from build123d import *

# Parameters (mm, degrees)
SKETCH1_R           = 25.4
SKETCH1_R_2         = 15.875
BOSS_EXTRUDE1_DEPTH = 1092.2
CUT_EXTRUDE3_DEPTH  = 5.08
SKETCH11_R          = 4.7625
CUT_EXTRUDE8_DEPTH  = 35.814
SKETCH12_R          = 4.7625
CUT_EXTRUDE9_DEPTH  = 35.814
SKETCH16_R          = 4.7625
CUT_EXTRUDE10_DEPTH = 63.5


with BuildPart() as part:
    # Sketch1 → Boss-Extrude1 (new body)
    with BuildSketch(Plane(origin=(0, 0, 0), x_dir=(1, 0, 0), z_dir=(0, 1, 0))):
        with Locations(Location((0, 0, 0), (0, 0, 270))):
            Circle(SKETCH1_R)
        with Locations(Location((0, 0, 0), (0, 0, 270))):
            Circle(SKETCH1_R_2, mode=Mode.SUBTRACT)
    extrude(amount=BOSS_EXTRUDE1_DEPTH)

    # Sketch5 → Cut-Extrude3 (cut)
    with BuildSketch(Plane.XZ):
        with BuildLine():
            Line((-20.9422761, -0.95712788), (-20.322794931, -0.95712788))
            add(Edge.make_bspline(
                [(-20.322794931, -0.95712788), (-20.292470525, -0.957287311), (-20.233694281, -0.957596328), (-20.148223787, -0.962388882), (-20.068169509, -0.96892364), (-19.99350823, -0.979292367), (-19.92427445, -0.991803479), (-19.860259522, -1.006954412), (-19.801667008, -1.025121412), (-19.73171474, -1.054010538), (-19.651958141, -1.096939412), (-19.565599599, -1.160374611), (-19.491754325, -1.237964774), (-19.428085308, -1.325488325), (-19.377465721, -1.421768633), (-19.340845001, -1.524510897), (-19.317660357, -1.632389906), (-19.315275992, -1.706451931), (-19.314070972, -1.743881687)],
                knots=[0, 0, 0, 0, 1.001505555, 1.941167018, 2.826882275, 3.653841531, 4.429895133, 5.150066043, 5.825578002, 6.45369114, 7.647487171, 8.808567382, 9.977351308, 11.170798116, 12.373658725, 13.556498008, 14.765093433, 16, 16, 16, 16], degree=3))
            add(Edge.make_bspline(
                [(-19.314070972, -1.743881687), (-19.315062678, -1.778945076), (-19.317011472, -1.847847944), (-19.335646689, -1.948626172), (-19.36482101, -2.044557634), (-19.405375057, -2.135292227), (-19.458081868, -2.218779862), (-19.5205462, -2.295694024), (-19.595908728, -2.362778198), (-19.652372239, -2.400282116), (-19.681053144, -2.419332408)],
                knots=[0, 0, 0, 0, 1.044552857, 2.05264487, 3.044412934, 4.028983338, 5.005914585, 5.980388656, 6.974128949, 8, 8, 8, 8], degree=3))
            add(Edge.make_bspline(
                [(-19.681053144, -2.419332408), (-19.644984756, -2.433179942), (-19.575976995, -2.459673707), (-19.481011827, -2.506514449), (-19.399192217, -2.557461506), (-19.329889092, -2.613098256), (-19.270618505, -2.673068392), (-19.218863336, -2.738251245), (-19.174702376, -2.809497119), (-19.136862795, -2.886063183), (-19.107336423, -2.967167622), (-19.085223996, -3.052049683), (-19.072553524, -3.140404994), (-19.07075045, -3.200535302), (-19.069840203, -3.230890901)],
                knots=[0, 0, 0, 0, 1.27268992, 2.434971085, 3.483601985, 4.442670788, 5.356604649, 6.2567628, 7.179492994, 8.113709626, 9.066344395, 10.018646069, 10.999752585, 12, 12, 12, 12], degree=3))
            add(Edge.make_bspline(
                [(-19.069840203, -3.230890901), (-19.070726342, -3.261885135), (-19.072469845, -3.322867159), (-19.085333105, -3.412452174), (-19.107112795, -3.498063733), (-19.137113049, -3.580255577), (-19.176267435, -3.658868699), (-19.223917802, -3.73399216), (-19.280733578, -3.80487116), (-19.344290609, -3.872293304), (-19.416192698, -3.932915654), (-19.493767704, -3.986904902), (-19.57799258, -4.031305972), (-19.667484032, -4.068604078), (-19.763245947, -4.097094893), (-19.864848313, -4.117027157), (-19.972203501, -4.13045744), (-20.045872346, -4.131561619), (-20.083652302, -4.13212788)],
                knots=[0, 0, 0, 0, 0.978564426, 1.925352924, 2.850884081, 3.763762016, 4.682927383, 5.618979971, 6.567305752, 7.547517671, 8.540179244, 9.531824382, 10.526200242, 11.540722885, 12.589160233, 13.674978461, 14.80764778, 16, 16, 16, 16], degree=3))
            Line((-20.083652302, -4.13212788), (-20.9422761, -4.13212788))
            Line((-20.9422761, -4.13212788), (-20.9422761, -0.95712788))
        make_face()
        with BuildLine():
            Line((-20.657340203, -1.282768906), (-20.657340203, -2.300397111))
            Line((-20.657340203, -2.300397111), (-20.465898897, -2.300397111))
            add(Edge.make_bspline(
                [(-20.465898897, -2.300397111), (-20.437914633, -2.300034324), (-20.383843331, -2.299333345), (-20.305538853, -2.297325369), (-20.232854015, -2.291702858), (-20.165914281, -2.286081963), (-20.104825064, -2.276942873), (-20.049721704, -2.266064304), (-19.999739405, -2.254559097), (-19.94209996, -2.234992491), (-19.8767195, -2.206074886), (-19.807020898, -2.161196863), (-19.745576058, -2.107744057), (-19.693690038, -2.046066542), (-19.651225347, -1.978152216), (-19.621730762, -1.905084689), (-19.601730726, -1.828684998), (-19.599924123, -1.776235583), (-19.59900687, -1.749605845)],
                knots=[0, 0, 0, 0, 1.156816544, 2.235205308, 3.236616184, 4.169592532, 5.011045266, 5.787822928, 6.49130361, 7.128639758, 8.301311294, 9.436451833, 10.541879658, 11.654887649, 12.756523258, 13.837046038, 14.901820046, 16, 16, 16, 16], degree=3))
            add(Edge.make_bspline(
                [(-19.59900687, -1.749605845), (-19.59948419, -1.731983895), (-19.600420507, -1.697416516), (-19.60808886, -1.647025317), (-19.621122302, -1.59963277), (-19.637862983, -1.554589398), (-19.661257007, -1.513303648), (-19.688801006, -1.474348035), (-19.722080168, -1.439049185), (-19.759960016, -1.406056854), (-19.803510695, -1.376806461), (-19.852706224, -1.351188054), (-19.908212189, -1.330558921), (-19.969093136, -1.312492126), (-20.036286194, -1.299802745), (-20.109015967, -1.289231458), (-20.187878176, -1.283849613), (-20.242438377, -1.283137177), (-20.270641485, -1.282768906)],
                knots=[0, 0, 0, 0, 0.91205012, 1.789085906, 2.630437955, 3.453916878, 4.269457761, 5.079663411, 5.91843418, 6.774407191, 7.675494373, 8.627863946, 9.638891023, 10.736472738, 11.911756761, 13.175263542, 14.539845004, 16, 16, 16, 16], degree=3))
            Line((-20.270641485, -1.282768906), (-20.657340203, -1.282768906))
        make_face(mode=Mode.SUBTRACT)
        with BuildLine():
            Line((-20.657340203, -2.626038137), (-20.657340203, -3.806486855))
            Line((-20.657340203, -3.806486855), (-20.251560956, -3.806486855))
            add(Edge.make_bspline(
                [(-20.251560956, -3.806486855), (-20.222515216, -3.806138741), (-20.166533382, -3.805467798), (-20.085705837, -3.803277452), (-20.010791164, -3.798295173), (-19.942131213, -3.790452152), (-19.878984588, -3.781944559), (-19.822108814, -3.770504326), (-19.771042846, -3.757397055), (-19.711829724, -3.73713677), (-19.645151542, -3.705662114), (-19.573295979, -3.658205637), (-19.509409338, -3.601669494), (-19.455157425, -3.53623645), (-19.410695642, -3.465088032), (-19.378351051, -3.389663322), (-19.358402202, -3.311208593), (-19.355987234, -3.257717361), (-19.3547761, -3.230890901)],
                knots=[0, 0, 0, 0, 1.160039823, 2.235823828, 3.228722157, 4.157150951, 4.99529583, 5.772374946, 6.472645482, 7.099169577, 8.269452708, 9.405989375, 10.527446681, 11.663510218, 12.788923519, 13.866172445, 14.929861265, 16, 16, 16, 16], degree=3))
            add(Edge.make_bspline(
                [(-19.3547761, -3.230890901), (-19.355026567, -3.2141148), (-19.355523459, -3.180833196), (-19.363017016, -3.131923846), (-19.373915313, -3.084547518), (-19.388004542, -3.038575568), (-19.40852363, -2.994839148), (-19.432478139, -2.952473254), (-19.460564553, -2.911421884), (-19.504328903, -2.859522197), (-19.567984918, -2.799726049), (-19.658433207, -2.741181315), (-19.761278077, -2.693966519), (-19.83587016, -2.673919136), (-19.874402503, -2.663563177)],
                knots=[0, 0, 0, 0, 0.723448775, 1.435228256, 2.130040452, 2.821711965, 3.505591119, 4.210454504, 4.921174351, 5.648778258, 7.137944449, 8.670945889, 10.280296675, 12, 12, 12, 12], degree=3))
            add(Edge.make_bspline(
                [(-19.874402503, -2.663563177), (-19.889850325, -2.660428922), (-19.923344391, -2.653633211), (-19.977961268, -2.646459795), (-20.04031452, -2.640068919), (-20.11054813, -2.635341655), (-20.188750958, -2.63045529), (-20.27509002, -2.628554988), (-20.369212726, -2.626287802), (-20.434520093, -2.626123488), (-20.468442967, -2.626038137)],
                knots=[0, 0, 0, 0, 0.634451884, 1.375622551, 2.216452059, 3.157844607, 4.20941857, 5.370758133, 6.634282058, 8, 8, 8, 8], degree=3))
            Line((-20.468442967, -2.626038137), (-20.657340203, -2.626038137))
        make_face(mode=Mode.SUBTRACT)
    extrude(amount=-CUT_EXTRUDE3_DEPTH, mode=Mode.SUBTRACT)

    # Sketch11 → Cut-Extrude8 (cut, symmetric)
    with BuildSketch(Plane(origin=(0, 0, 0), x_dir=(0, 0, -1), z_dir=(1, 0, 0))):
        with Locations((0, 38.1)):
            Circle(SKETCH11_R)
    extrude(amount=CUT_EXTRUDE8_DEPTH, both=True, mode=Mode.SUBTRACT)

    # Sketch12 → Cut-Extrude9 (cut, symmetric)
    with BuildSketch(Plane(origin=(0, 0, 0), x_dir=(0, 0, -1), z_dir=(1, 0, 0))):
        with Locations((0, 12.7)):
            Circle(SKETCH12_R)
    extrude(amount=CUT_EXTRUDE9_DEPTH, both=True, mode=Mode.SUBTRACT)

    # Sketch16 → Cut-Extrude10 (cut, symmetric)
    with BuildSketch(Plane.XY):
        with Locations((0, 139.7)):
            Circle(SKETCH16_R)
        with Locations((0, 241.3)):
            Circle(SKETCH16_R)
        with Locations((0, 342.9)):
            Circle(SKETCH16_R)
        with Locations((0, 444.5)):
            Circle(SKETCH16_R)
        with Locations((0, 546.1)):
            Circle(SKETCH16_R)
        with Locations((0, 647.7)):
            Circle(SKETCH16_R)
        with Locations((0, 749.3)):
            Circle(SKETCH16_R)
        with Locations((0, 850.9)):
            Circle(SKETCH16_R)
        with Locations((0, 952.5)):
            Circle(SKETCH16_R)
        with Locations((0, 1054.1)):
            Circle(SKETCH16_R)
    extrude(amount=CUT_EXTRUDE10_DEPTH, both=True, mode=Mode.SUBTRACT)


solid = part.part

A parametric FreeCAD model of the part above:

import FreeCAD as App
import Part
import Sketcher

V = App.Vector
Q = App.Units.Quantity

doc = App.newDocument("Part")
body = doc.addObject("PartDesign::Body", "Body")

sketch1 = doc.addObject("Sketcher::SketchObject", "Sketch")
body.addObject(sketch1)
sketch1.AttachmentSupport = (doc.XZ_Plane, [""])
sketch1.MapMode = "FlatFace"
sketch1.addGeometry(Part.Circle(V(0, 0, 0), V(0, 0, 1), 25), False)
sketch1.addGeometry(Part.Circle(V(0, 0, 0), V(0, 0, 1), 16), False)
sketch1.addConstraint(Sketcher.Constraint("Coincident", 0, 3, -1, 1))
sketch1.addConstraint(Sketcher.Constraint("Coincident", 1, 3, -1, 1))
sketch1.addConstraint(Sketcher.Constraint("Diameter", 0, Q("2 in")))
sketch1.addConstraint(Sketcher.Constraint("Diameter", 1, Q("1.25 in")))
pad1 = doc.addObject("PartDesign::Pad", "Pad")
body.addObject(pad1)
pad1.Profile = sketch1
pad1.Length = Q("43 in")
pad1.Reversed = True

sketch2 = doc.addObject("Sketcher::SketchObject", "Sketch001")
body.addObject(sketch2)
sketch2.AttachmentSupport = (doc.XZ_Plane, [""])
sketch2.MapMode = "FlatFace"
sketch2.addGeometry(Part.LineSegment(V(-20.322795, -0.957128, 0), V(-20.942276, -0.957128, 0)), False)
sketch2.addGeometry(Part.LineSegment(V(-20.942276, -0.957128, 0), V(-20.942276, -4.132128, 0)), False)
sketch2.addGeometry(Part.LineSegment(V(-20.942276, -4.132128, 0), V(-20.083652, -4.132128, 0)), False)
sketch2.addGeometry(Part.BSplineCurve([V(-19.06984, -3.230891, 0), V(-19.070726, -3.261885, 0), V(-19.07247, -3.322867, 0), V(-19.085333, -3.412452, 0), V(-19.107113, -3.498064, 0), V(-19.137113, -3.580256, 0), V(-19.176267, -3.658869, 0), V(-19.223918, -3.733992, 0), V(-19.280734, -3.804871, 0), V(-19.344291, -3.872293, 0), V(-19.416193, -3.932916, 0), V(-19.493768, -3.986905, 0), V(-19.577993, -4.031306, 0), V(-19.667484, -4.068604, 0), V(-19.763246, -4.097095, 0), V(-19.864848, -4.117027, 0), V(-19.972204, -4.130457, 0), V(-20.045872, -4.131562, 0), V(-20.083652, -4.132128, 0)], [4, 1, 1, 1, 1, 1, 1, 1, 1, 1, 1, 1, 1, 1, 1, 1, 4], [0, 0.978564426, 1.925352924, 2.850884081, 3.763762016, 4.682927383, 5.618979971, 6.567305752, 7.547517671, 8.540179244, 9.531824382, 10.526200242, 11.540722885, 12.589160233, 13.674978461, 14.80764778, 16], False, 3, [1, 1, 1, 1, 1, 1, 1, 1, 1, 1, 1, 1, 1, 1, 1, 1, 1, 1, 1], False), False)
sketch2.addGeometry(Part.BSplineCurve([V(-19.681053, -2.419332, 0), V(-19.644985, -2.43318, 0), V(-19.575977, -2.459674, 0), V(-19.481012, -2.506514, 0), V(-19.399192, -2.557462, 0), V(-19.329889, -2.613098, 0), V(-19.270619, -2.673068, 0), V(-19.218863, -2.738251, 0), V(-19.174702, -2.809497, 0), V(-19.136863, -2.886063, 0), V(-19.107336, -2.967168, 0), V(-19.085224, -3.05205, 0), V(-19.072554, -3.140405, 0), V(-19.07075, -3.200535, 0), V(-19.06984, -3.230891, 0)], [4, 1, 1, 1, 1, 1, 1, 1, 1, 1, 1, 1, 4], [0, 1.27268992, 2.434971085, 3.483601985, 4.442670788, 5.356604649, 6.2567628, 7.179492994, 8.113709626, 9.066344395, 10.018646069, 10.999752585, 12], False, 3, [1, 1, 1, 1, 1, 1, 1, 1, 1, 1, 1, 1, 1, 1, 1], False), False)
sketch2.addGeometry(Part.BSplineCurve([V(-19.314071, -1.743882, 0), V(-19.315063, -1.778945, 0), V(-19.317011, -1.847848, 0), V(-19.335647, -1.948626, 0), V(-19.364821, -2.044558, 0), V(-19.405375, -2.135292, 0), V(-19.458082, -2.21878, 0), V(-19.520546, -2.295694, 0), V(-19.595909, -2.362778, 0), V(-19.652372, -2.400282, 0), V(-19.681053, -2.419332, 0)], [4, 1, 1, 1, 1, 1, 1, 1, 4], [0, 1.044552857, 2.05264487, 3.044412934, 4.028983338, 5.005914585, 5.980388656, 6.974128949, 8], False, 3, [1, 1, 1, 1, 1, 1, 1, 1, 1, 1, 1], False), False)
sketch2.addGeometry(Part.BSplineCurve([V(-20.322795, -0.957128, 0), V(-20.292471, -0.957287, 0), V(-20.233694, -0.957596, 0), V(-20.148224, -0.962389, 0), V(-20.06817, -0.968924, 0), V(-19.993508, -0.979292, 0), V(-19.924274, -0.991803, 0), V(-19.86026, -1.006954, 0), V(-19.801667, -1.025121, 0), V(-19.731715, -1.054011, 0), V(-19.651958, -1.096939, 0), V(-19.5656, -1.160375, 0), V(-19.491754, -1.237965, 0), V(-19.428085, -1.325488, 0), V(-19.377466, -1.421769, 0), V(-19.340845, -1.524511, 0), V(-19.31766, -1.63239, 0), V(-19.315276, -1.706452, 0), V(-19.314071, -1.743882, 0)], [4, 1, 1, 1, 1, 1, 1, 1, 1, 1, 1, 1, 1, 1, 1, 1, 4], [0, 1.001505555, 1.941167018, 2.826882275, 3.653841531, 4.429895133, 5.150066043, 5.825578002, 6.45369114, 7.647487171, 8.808567382, 9.977351308, 11.170798116, 12.373658725, 13.556498008, 14.765093433, 16], False, 3, [1, 1, 1, 1, 1, 1, 1, 1, 1, 1, 1, 1, 1, 1, 1, 1, 1, 1, 1], False), False)
sketch2.addGeometry(Part.LineSegment(V(-20.65734, -2.626038, 0), V(-20.468443, -2.626038, 0)), False)
sketch2.addGeometry(Part.BSplineCurve([V(-19.874403, -2.663563, 0), V(-19.88985, -2.660429, 0), V(-19.923344, -2.653633, 0), V(-19.977961, -2.64646, 0), V(-20.040315, -2.640069, 0), V(-20.110548, -2.635342, 0), V(-20.188751, -2.630455, 0), V(-20.27509, -2.628555, 0), V(-20.369213, -2.626288, 0), V(-20.43452, -2.626123, 0), V(-20.468443, -2.626038, 0)], [4, 1, 1, 1, 1, 1, 1, 1, 4], [0, 0.634451884, 1.375622551, 2.216452059, 3.157844607, 4.20941857, 5.370758133, 6.634282058, 8], False, 3, [1, 1, 1, 1, 1, 1, 1, 1, 1, 1, 1], False), False)
sketch2.addGeometry(Part.BSplineCurve([V(-19.354776, -3.230891, 0), V(-19.355027, -3.214115, 0), V(-19.355523, -3.180833, 0), V(-19.363017, -3.131924, 0), V(-19.373915, -3.084548, 0), V(-19.388005, -3.038576, 0), V(-19.408524, -2.994839, 0), V(-19.432478, -2.952473, 0), V(-19.460565, -2.911422, 0), V(-19.504329, -2.859522, 0), V(-19.567985, -2.799726, 0), V(-19.658433, -2.741181, 0), V(-19.761278, -2.693967, 0), V(-19.83587, -2.673919, 0), V(-19.874403, -2.663563, 0)], [4, 1, 1, 1, 1, 1, 1, 1, 1, 1, 1, 1, 4], [0, 0.723448775, 1.435228256, 2.130040452, 2.821711965, 3.505591119, 4.210454504, 4.921174351, 5.648778258, 7.137944449, 8.670945889, 10.280296675, 12], False, 3, [1, 1, 1, 1, 1, 1, 1, 1, 1, 1, 1, 1, 1, 1, 1], False), False)
sketch2.addGeometry(Part.BSplineCurve([V(-20.251561, -3.806487, 0), V(-20.222515, -3.806139, 0), V(-20.166533, -3.805468, 0), V(-20.085706, -3.803277, 0), V(-20.010791, -3.798295, 0), V(-19.942131, -3.790452, 0), V(-19.878985, -3.781945, 0), V(-19.822109, -3.770504, 0), V(-19.771043, -3.757397, 0), V(-19.71183, -3.737137, 0), V(-19.645152, -3.705662, 0), V(-19.573296, -3.658206, 0), V(-19.509409, -3.601669, 0), V(-19.455157, -3.536236, 0), V(-19.410696, -3.465088, 0), V(-19.378351, -3.389663, 0), V(-19.358402, -3.311209, 0), V(-19.355987, -3.257717, 0), V(-19.354776, -3.230891, 0)], [4, 1, 1, 1, 1, 1, 1, 1, 1, 1, 1, 1, 1, 1, 1, 1, 4], [0, 1.160039823, 2.235823828, 3.228722157, 4.157150951, 4.99529583, 5.772374946, 6.472645482, 7.099169577, 8.269452708, 9.405989375, 10.527446681, 11.663510218, 12.788923519, 13.866172445, 14.929861265, 16], False, 3, [1, 1, 1, 1, 1, 1, 1, 1, 1, 1, 1, 1, 1, 1, 1, 1, 1, 1, 1], False), False)
sketch2.addGeometry(Part.LineSegment(V(-20.251561, -3.806487, 0), V(-20.65734, -3.806487, 0)), False)
sketch2.addGeometry(Part.LineSegment(V(-20.65734, -3.806487, 0), V(-20.65734, -2.626038, 0)), False)
sketch2.addGeometry(Part.LineSegment(V(-20.65734, -1.282769, 0), V(-20.270641, -1.282769, 0)), False)
sketch2.addGeometry(Part.BSplineCurve([V(-19.599007, -1.749606, 0), V(-19.599484, -1.731984, 0), V(-19.600421, -1.697417, 0), V(-19.608089, -1.647025, 0), V(-19.621122, -1.599633, 0), V(-19.637863, -1.554589, 0), V(-19.661257, -1.513304, 0), V(-19.688801, -1.474348, 0), V(-19.72208, -1.439049, 0), V(-19.75996, -1.406057, 0), V(-19.803511, -1.376806, 0), V(-19.852706, -1.351188, 0), V(-19.908212, -1.330559, 0), V(-19.969093, -1.312492, 0), V(-20.036286, -1.299803, 0), V(-20.109016, -1.289231, 0), V(-20.187878, -1.28385, 0), V(-20.242438, -1.283137, 0), V(-20.270641, -1.282769, 0)], [4, 1, 1, 1, 1, 1, 1, 1, 1, 1, 1, 1, 1, 1, 1, 1, 4], [0, 0.91205012, 1.789085906, 2.630437955, 3.453916878, 4.269457761, 5.079663411, 5.91843418, 6.774407191, 7.675494373, 8.627863946, 9.638891023, 10.736472738, 11.911756761, 13.175263542, 14.539845004, 16], False, 3, [1, 1, 1, 1, 1, 1, 1, 1, 1, 1, 1, 1, 1, 1, 1, 1, 1, 1, 1], False), False)
sketch2.addGeometry(Part.BSplineCurve([V(-20.465899, -2.300397, 0), V(-20.437915, -2.300034, 0), V(-20.383843, -2.299333, 0), V(-20.305539, -2.297325, 0), V(-20.232854, -2.291703, 0), V(-20.165914, -2.286082, 0), V(-20.104825, -2.276943, 0), V(-20.049722, -2.266064, 0), V(-19.999739, -2.254559, 0), V(-19.9421, -2.234992, 0), V(-19.87672, -2.206075, 0), V(-19.807021, -2.161197, 0), V(-19.745576, -2.107744, 0), V(-19.69369, -2.046067, 0), V(-19.651225, -1.978152, 0), V(-19.621731, -1.905085, 0), V(-19.601731, -1.828685, 0), V(-19.599924, -1.776236, 0), V(-19.599007, -1.749606, 0)], [4, 1, 1, 1, 1, 1, 1, 1, 1, 1, 1, 1, 1, 1, 1, 1, 4], [0, 1.156816544, 2.235205308, 3.236616184, 4.169592532, 5.011045266, 5.787822928, 6.49130361, 7.128639758, 8.301311294, 9.436451833, 10.541879658, 11.654887649, 12.756523258, 13.837046038, 14.901820046, 16], False, 3, [1, 1, 1, 1, 1, 1, 1, 1, 1, 1, 1, 1, 1, 1, 1, 1, 1, 1, 1], False), False)
sketch2.addGeometry(Part.LineSegment(V(-20.465899, -2.300397, 0), V(-20.65734, -2.300397, 0)), False)
sketch2.addGeometry(Part.LineSegment(V(-20.65734, -2.300397, 0), V(-20.65734, -1.282769, 0)), False)
sketch2.addConstraint(Sketcher.Constraint("Block", 3))
sketch2.addConstraint(Sketcher.Constraint("Block", 4))
sketch2.addConstraint(Sketcher.Constraint("Block", 5))
sketch2.addConstraint(Sketcher.Constraint("Block", 6))
sketch2.addConstraint(Sketcher.Constraint("Block", 8))
sketch2.addConstraint(Sketcher.Constraint("Block", 9))
sketch2.addConstraint(Sketcher.Constraint("Block", 10))
sketch2.addConstraint(Sketcher.Constraint("Block", 14))
sketch2.addConstraint(Sketcher.Constraint("Block", 15))
sketch2.addConstraint(Sketcher.Constraint("Coincident", 0, 2, 1, 1))
sketch2.addConstraint(Sketcher.Constraint("Coincident", 1, 2, 2, 1))
sketch2.addConstraint(Sketcher.Constraint("Coincident", 2, 2, 3, 2))
sketch2.addConstraint(Sketcher.Constraint("Coincident", 6, 1, 0, 1))
sketch2.addConstraint(Sketcher.Constraint("Coincident", 7, 2, 8, 2))
sketch2.addConstraint(Sketcher.Constraint("Coincident", 10, 1, 11, 1))
sketch2.addConstraint(Sketcher.Constraint("Coincident", 11, 2, 12, 1))
sketch2.addConstraint(Sketcher.Constraint("Coincident", 12, 2, 7, 1))
sketch2.addConstraint(Sketcher.Constraint("Coincident", 13, 2, 14, 2))
sketch2.addConstraint(Sketcher.Constraint("Coincident", 15, 1, 16, 1))
sketch2.addConstraint(Sketcher.Constraint("Coincident", 16, 2, 17, 1))
sketch2.addConstraint(Sketcher.Constraint("Coincident", 17, 2, 13, 1))
sketch2.addConstraint(Sketcher.Constraint("Horizontal", 0))
sketch2.addConstraint(Sketcher.Constraint("Vertical", 1))
sketch2.addConstraint(Sketcher.Constraint("Horizontal", 2))
sketch2.addConstraint(Sketcher.Constraint("Horizontal", 7))
sketch2.addConstraint(Sketcher.Constraint("Horizontal", 11))
sketch2.addConstraint(Sketcher.Constraint("Vertical", 12))
sketch2.addConstraint(Sketcher.Constraint("Horizontal", 13))
sketch2.addConstraint(Sketcher.Constraint("Horizontal", 16))
sketch2.addConstraint(Sketcher.Constraint("Vertical", 17))
sketch2.addConstraint(Sketcher.Constraint("Vertical", 12, 2, 16, 2))
sketch2.addConstraint(Sketcher.Constraint("DistanceX", 13, 1, 13, 2, 0.386699))
sketch2.addConstraint(Sketcher.Constraint("DistanceX", 0, 2, 0, 1, 0.619481))
pocket1 = doc.addObject("PartDesign::Pocket", "Pocket")
body.addObject(pocket1)
pocket1.Profile = sketch2
pocket1.Length = Q("0.2 in")

sketch3 = doc.addObject("Sketcher::SketchObject", "Sketch002")
body.addObject(sketch3)
sketch3.AttachmentSupport = (doc.YZ_Plane, [""])
sketch3.MapMode = "FlatFace"
sketch3.addGeometry(Part.Circle(V(38.1, 0, 0), V(0, 0, 1), 4.8), False)
sketch3.addConstraint(Sketcher.Constraint("PointOnObject", 0, 3, -1))
sketch3.addConstraint(Sketcher.Constraint("Diameter", 0, Q("0.375 in")))
sketch3.addConstraint(Sketcher.Constraint("DistanceX", -1, 1, 0, 3, Q("1.5 in")))
pocket2 = doc.addObject("PartDesign::Pocket", "Pocket001")
body.addObject(pocket2)
pocket2.Profile = sketch3
pocket2.Length = Q("2.82 in")
pocket2.Midplane = True

sketch4 = doc.addObject("Sketcher::SketchObject", "Sketch003")
body.addObject(sketch4)
sketch4.AttachmentSupport = (doc.YZ_Plane, [""])
sketch4.MapMode = "FlatFace"
sketch4.addGeometry(Part.Circle(V(12.7, 0, 0), V(0, 0, 1), 4.8), False)
sketch4.addConstraint(Sketcher.Constraint("PointOnObject", 0, 3, -1))
sketch4.addConstraint(Sketcher.Constraint("Diameter", 0, Q("0.375 in")))
sketch4.addConstraint(Sketcher.Constraint("DistanceX", -1, 1, 0, 3, Q("0.5 in")))
pocket3 = doc.addObject("PartDesign::Pocket", "Pocket002")
body.addObject(pocket3)
pocket3.Profile = sketch4
pocket3.Length = Q("2.82 in")
pocket3.Midplane = True

sketch5 = doc.addObject("Sketcher::SketchObject", "Sketch004")
body.addObject(sketch5)
sketch5.AttachmentSupport = (doc.XY_Plane, [""])
sketch5.MapMode = "FlatFace"
sketch5.addGeometry(Part.Circle(V(0, 139.7, 0), V(0, 0, 1), 4.8), False)
sketch5.addGeometry(Part.Circle(V(0, 241.3, 0), V(0, 0, 1), 4.8), False)
sketch5.addGeometry(Part.Circle(V(0, 342.9, 0), V(0, 0, 1), 4.8), False)
sketch5.addGeometry(Part.Circle(V(0, 444.5, 0), V(0, 0, 1), 4.8), False)
sketch5.addGeometry(Part.Circle(V(0, 546.1, 0), V(0, 0, 1), 4.8), False)
sketch5.addGeometry(Part.Circle(V(0, 647.7, 0), V(0, 0, 1), 4.8), False)
sketch5.addGeometry(Part.Circle(V(0, 749.3, 0), V(0, 0, 1), 4.8), False)
sketch5.addGeometry(Part.Circle(V(0, 850.9, 0), V(0, 0, 1), 4.8), False)
sketch5.addGeometry(Part.Circle(V(0, 952.5, 0), V(0, 0, 1), 4.8), False)
sketch5.addGeometry(Part.Circle(V(0, 1054.1, 0), V(0, 0, 1), 4.8), False)
sketch5.addConstraint(Sketcher.Constraint("Equal", 0, 1))
sketch5.addConstraint(Sketcher.Constraint("Equal", 1, 2))
sketch5.addConstraint(Sketcher.Constraint("Equal", 2, 3))
sketch5.addConstraint(Sketcher.Constraint("Equal", 3, 4))
sketch5.addConstraint(Sketcher.Constraint("Equal", 4, 5))
sketch5.addConstraint(Sketcher.Constraint("Equal", 5, 6))
sketch5.addConstraint(Sketcher.Constraint("Equal", 6, 7))
sketch5.addConstraint(Sketcher.Constraint("Equal", 7, 8))
sketch5.addConstraint(Sketcher.Constraint("Equal", 8, 9))
sketch5.addConstraint(Sketcher.Constraint("PointOnObject", 0, 3, -2))
sketch5.addConstraint(Sketcher.Constraint("PointOnObject", 1, 3, -2))
sketch5.addConstraint(Sketcher.Constraint("PointOnObject", 2, 3, -2))
sketch5.addConstraint(Sketcher.Constraint("PointOnObject", 3, 3, -2))
sketch5.addConstraint(Sketcher.Constraint("PointOnObject", 4, 3, -2))
sketch5.addConstraint(Sketcher.Constraint("PointOnObject", 5, 3, -2))
sketch5.addConstraint(Sketcher.Constraint("PointOnObject", 6, 3, -2))
sketch5.addConstraint(Sketcher.Constraint("PointOnObject", 7, 3, -2))
sketch5.addConstraint(Sketcher.Constraint("PointOnObject", 8, 3, -2))
sketch5.addConstraint(Sketcher.Constraint("PointOnObject", 9, 3, -2))
sketch5.addConstraint(Sketcher.Constraint("Diameter", 0, Q("0.375 in")))
sketch5.addConstraint(Sketcher.Constraint("DistanceY", 0, 3, 1, 3, Q("4 in")))
sketch5.addConstraint(Sketcher.Constraint("DistanceY", 1, 3, 2, 3, Q("4 in")))
sketch5.addConstraint(Sketcher.Constraint("DistanceY", 2, 3, 3, 3, Q("4 in")))
sketch5.addConstraint(Sketcher.Constraint("DistanceY", 3, 3, 4, 3, Q("4 in")))
sketch5.addConstraint(Sketcher.Constraint("DistanceY", 4, 3, 5, 3, Q("4 in")))
sketch5.addConstraint(Sketcher.Constraint("DistanceY", 5, 3, 6, 3, Q("4 in")))
sketch5.addConstraint(Sketcher.Constraint("DistanceY", 6, 3, 7, 3, Q("4 in")))
sketch5.addConstraint(Sketcher.Constraint("DistanceY", 7, 3, 8, 3, Q("4 in")))
sketch5.addConstraint(Sketcher.Constraint("DistanceY", 8, 3, 9, 3, Q("4 in")))
sketch5.addConstraint(Sketcher.Constraint("DistanceY", -1, 1, 0, 3, Q("5.5 in")))
pocket4 = doc.addObject("PartDesign::Pocket", "Pocket003")
body.addObject(pocket4)
pocket4.Profile = sketch5
pocket4.Length = Q("5 in")
pocket4.Midplane = True

doc.recompute()
